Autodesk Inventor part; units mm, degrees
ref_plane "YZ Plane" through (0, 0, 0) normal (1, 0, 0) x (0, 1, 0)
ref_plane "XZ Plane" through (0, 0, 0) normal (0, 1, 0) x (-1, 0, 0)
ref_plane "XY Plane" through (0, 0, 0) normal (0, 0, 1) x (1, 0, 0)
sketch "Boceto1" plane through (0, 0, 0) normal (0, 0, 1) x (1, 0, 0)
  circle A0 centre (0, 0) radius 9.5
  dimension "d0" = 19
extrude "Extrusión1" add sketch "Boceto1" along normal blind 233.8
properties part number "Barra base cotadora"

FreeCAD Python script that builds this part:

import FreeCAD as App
import Part
import Sketcher
Q = App.Units.Quantity

doc = App.newDocument("Part")
body = doc.addObject("PartDesign::Body", "Body")

sketch1 = body.newObject("Sketcher::SketchObject", "Sketch")
sketch1.AttachmentSupport = (doc.getObject("XY_Plane"), [""])
sketch1.MapMode = "FlatFace"
sketch1.addGeometry(Part.Circle(App.Vector(0, 0, 0), App.Vector(0, 0, 1), 10), False)
sketch1.addConstraint([
    Sketcher.Constraint("Coincident", 0, 3, -1, 1),
    Sketcher.Constraint("Diameter", 0, Q("19 mm")),
])
pad1 = body.newObject("PartDesign::Pad", "Pad")
pad1.Profile = sketch1
pad1.Length = 233.8

doc.recompute()
